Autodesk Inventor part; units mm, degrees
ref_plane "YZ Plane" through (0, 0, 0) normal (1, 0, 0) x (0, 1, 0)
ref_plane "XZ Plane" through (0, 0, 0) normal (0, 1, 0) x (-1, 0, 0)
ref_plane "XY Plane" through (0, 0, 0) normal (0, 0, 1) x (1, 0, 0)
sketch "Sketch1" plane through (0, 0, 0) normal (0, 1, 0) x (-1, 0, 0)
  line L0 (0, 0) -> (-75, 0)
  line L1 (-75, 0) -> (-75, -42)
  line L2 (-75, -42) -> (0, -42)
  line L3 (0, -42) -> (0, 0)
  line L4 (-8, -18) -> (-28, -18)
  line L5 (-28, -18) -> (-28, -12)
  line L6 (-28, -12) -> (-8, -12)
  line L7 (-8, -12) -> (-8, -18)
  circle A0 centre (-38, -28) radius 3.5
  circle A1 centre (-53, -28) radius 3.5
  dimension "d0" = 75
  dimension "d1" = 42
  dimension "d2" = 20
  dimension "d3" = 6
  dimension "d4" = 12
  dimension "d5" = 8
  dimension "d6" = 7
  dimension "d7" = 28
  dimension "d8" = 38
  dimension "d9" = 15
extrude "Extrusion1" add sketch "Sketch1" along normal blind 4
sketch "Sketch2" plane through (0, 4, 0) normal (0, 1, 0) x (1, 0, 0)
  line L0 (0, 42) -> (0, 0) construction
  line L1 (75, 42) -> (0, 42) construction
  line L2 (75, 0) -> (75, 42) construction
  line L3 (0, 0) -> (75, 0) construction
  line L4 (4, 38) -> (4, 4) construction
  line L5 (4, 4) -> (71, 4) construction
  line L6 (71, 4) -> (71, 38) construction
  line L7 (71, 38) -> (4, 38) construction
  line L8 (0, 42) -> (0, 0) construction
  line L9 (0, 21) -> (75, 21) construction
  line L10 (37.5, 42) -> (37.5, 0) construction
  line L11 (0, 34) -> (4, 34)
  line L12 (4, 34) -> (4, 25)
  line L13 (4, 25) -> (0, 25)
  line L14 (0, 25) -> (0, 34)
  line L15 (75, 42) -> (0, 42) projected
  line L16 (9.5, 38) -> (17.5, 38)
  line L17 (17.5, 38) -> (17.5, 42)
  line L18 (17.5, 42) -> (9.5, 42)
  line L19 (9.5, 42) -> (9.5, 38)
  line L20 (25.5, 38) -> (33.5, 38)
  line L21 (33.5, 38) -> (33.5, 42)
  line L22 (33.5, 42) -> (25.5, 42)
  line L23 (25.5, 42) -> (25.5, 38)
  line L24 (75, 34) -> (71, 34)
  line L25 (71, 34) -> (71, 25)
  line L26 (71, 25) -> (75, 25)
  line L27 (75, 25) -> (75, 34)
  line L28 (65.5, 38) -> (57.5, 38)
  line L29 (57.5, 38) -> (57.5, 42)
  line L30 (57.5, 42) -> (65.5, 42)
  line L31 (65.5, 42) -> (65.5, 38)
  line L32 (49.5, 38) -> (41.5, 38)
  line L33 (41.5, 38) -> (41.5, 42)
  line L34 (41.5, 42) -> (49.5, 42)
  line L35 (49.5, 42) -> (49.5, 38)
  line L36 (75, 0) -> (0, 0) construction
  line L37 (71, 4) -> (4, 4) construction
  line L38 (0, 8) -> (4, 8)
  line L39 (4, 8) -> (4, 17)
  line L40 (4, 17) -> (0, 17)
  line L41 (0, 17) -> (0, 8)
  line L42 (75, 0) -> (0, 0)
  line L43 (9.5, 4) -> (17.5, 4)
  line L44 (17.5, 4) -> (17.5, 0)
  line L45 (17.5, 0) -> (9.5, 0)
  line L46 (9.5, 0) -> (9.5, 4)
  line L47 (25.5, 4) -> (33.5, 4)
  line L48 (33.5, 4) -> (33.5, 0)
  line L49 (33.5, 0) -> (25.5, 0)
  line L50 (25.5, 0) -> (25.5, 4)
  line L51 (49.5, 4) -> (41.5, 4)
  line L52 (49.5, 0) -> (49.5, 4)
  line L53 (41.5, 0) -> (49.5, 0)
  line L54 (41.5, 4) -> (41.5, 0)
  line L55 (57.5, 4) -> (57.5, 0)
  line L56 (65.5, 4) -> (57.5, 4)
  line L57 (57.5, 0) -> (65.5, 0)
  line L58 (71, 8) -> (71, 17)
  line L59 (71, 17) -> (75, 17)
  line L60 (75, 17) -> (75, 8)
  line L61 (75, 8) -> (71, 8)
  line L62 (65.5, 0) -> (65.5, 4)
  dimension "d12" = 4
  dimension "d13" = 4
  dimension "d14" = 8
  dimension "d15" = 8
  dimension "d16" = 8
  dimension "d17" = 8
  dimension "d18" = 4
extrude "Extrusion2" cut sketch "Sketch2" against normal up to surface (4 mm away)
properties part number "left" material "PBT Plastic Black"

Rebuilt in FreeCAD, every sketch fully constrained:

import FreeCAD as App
import Part
import Sketcher

V = App.Vector
Q = App.Units.Quantity


def add_polygon(sketch, points):
    """Adds a closed chain of lines whose ends are joined by coincident constraints."""
    first, n = sketch.GeometryCount, len(points)
    for a, b in zip(points, points[1:] + points[:1]):
        sketch.addGeometry(Part.LineSegment(App.Vector(*a, 0), App.Vector(*b, 0)), False)
    for i in range(n):
        sketch.addConstraint(Sketcher.Constraint("Coincident", first + i, 2, first + (i + 1) % n, 1))

doc = App.newDocument("Part")
params = doc.addObject("Spreadsheet::Sheet", "Params")
for row, (alias, value) in enumerate([
    ("sketch1_diameter", "7 mm"),
    ("sketch1_width", "75 mm"),
    ("sketch1_width2", "20 mm"),
    ("sketch1_height", "42 mm"),
    ("sketch1_height2", "6 mm"),
    ("pad1_length", "4 mm"),
    ("sketch2_width", "4 mm"),
    ("sketch2_width2", "8 mm"),
    ("sketch2_height", "9 mm"),
    ("pocket1_length", "4 mm"),
], start=1):
    params.set(f"A{row}", alias)
    params.set(f"B{row}", "=" + value)
    params.setAlias(f"B{row}", alias)

body = doc.addObject("PartDesign::Body", "Body")

sketch1 = body.newObject("Sketcher::SketchObject", "Sketch")
sketch1.AttachmentSupport = (doc.getObject("XZ_Plane"), [""])
sketch1.MapMode = "FlatFace"
add_polygon(sketch1, [(0, -42), (0, 0), (75, 0), (75, -42)])
sketch1.addGeometry(Part.Circle(V(53, -28, 0), V(0, 0, 1), 3.5), False)
sketch1.addGeometry(Part.Circle(V(38, -28, 0), V(0, 0, 1), 3.5), False)
add_polygon(sketch1, [(8, -12), (8, -18), (28, -18), (28, -12)])
sketch1.addConstraint([
    Sketcher.Constraint("Vertical", 0),
    Sketcher.Constraint("Horizontal", 1),
    Sketcher.Constraint("Vertical", 2),
    Sketcher.Constraint("Horizontal", 3),
    Sketcher.Constraint("Vertical", 6),
    Sketcher.Constraint("Horizontal", 7),
    Sketcher.Constraint("Vertical", 8),
    Sketcher.Constraint("Horizontal", 9),
    Sketcher.Constraint("Coincident", 0, 2, -1, 1),
    Sketcher.Constraint("Equal", 4, 5),
    Sketcher.Constraint("Horizontal", 4, 3, 5, 3),
    Sketcher.Constraint("Diameter", 4, Q("7 mm")),
    Sketcher.Constraint("DistanceX", 1, 1, 1, 2, Q("75 mm")),
    Sketcher.Constraint("DistanceX", 7, 1, 7, 2, Q("20 mm")),
    Sketcher.Constraint("DistanceY", 0, 1, 0, 2, Q("42 mm")),
    Sketcher.Constraint("DistanceY", 6, 2, 6, 1, Q("6 mm")),
    Sketcher.Constraint("DistanceY", 4, 3, -1, 1, Q("28 mm")),
    Sketcher.Constraint("DistanceX", -1, 1, 5, 3, Q("38 mm")),
    Sketcher.Constraint("DistanceX", -1, 1, 6, 2, Q("8 mm")),
    Sketcher.Constraint("DistanceY", 8, 2, -1, 1, Q("12 mm")),
    Sketcher.Constraint("DistanceX", 5, 3, 4, 3, Q("15 mm")),
])
sketch1.setExpression("Constraints[19]", "Params.sketch1_diameter")
sketch1.setExpression("Constraints[20]", "Params.sketch1_width")
sketch1.setExpression("Constraints[21]", "Params.sketch1_width2")
sketch1.setExpression("Constraints[22]", "Params.sketch1_height")
sketch1.setExpression("Constraints[23]", "Params.sketch1_height2")
pad1 = body.newObject("PartDesign::Pad", "Pad")
pad1.Profile = sketch1
pad1.setExpression("Length", "Params.pad1_length")
pad1.Reversed = True

sketch2 = body.newObject("Sketcher::SketchObject", "Sketch001")
sketch2.AttachmentSupport = (doc.getObject("XZ_Plane"), [""])
sketch2.MapMode = "FlatFace"
sketch2.AttachmentOffset = App.Placement(V(0, 0, -4), App.Rotation())
add_polygon(sketch2, [(4, -34), (0, -34), (0, -25), (4, -25)])
add_polygon(sketch2, [(65.5, -38), (65.5, -42), (57.5, -42), (57.5, -38)])
add_polygon(sketch2, [(17.5, -38), (17.5, -42), (9.5, -42), (9.5, -38)])
add_polygon(sketch2, [(33.5, -38), (33.5, -42), (25.5, -42), (25.5, -38)])
add_polygon(sketch2, [(49.5, -38), (49.5, -42), (41.5, -42), (41.5, -38)])
add_polygon(sketch2, [(75, -25), (75, -34), (71, -34), (71, -25)])
add_polygon(sketch2, [(0, -17), (0, -8), (4, -8), (4, -17)])
add_polygon(sketch2, [(9.5, 0), (17.5, 0), (17.5, -4), (9.5, -4)])
add_polygon(sketch2, [(25.5, 0), (33.5, 0), (33.5, -4), (25.5, -4)])
add_polygon(sketch2, [(41.5, 0), (49.5, 0), (49.5, -4), (41.5, -4)])
add_polygon(sketch2, [(57.5, 0), (65.5, 0), (65.5, -4), (57.5, -4)])
add_polygon(sketch2, [(71, -17), (71, -8), (75, -8), (75, -17)])
sketch2.addConstraint([
    Sketcher.Constraint("Horizontal", 0),
    Sketcher.Constraint("Vertical", 1),
    Sketcher.Constraint("Horizontal", 2),
    Sketcher.Constraint("Vertical", 3),
    Sketcher.Constraint("Vertical", 4),
    Sketcher.Constraint("Horizontal", 5),
    Sketcher.Constraint("Vertical", 6),
    Sketcher.Constraint("Horizontal", 7),
    Sketcher.Constraint("Vertical", 8),
    Sketcher.Constraint("Horizontal", 9),
    Sketcher.Constraint("Vertical", 10),
    Sketcher.Constraint("Horizontal", 11),
    Sketcher.Constraint("Vertical", 12),
    Sketcher.Constraint("Horizontal", 13),
    Sketcher.Constraint("Vertical", 14),
    Sketcher.Constraint("Horizontal", 15),
    Sketcher.Constraint("Vertical", 16),
    Sketcher.Constraint("Horizontal", 17),
    Sketcher.Constraint("Vertical", 18),
    Sketcher.Constraint("Horizontal", 19),
    Sketcher.Constraint("Vertical", 20),
    Sketcher.Constraint("Horizontal", 21),
    Sketcher.Constraint("Vertical", 22),
    Sketcher.Constraint("Horizontal", 23),
    Sketcher.Constraint("Vertical", 24),
    Sketcher.Constraint("Horizontal", 25),
    Sketcher.Constraint("Vertical", 26),
    Sketcher.Constraint("Horizontal", 27),
    Sketcher.Constraint("Horizontal", 28),
    Sketcher.Constraint("Vertical", 29),
    Sketcher.Constraint("Horizontal", 30),
    Sketcher.Constraint("Vertical", 31),
    Sketcher.Constraint("Horizontal", 32),
    Sketcher.Constraint("Vertical", 33),
    Sketcher.Constraint("Horizontal", 34),
    Sketcher.Constraint("Vertical", 35),
    Sketcher.Constraint("Horizontal", 36),
    Sketcher.Constraint("Vertical", 37),
    Sketcher.Constraint("Horizontal", 38),
    Sketcher.Constraint("Vertical", 39),
    Sketcher.Constraint("Horizontal", 40),
    Sketcher.Constraint("Vertical", 41),
    Sketcher.Constraint("Horizontal", 42),
    Sketcher.Constraint("Vertical", 43),
    Sketcher.Constraint("Vertical", 44),
    Sketcher.Constraint("Horizontal", 45),
    Sketcher.Constraint("Vertical", 46),
    Sketcher.Constraint("Horizontal", 47),
    Sketcher.Constraint("PointOnObject", 0, 2, -2),
    Sketcher.Constraint("PointOnObject", 24, 2, -2),
    Sketcher.Constraint("PointOnObject", 28, 2, -1),
    Sketcher.Constraint("PointOnObject", 32, 2, -1),
    Sketcher.Constraint("PointOnObject", 36, 2, -1),
    Sketcher.Constraint("PointOnObject", 40, 2, -1),
    Sketcher.Constraint("Horizontal", 5, 2, 8, 2),
    Sketcher.Constraint("Horizontal", 7, 2, 10, 2),
    Sketcher.Constraint("Horizontal", 9, 2, 12, 2),
    Sketcher.Constraint("Horizontal", 11, 2, 14, 2),
    Sketcher.Constraint("Horizontal", 13, 2, 16, 2),
    Sketcher.Constraint("Horizontal", 15, 2, 18, 2),
    Sketcher.Constraint("Horizontal", 3, 2, 20, 2),
    Sketcher.Constraint("Horizontal", 2, 2, 22, 2),
    Sketcher.Constraint("Horizontal", 30, 2, 33, 2),
    Sketcher.Constraint("Horizontal", 34, 2, 37, 2),
    Sketcher.Constraint("Horizontal", 38, 2, 41, 2),
    Sketcher.Constraint("Horizontal", 25, 2, 44, 2),
    Sketcher.Constraint("Horizontal", 27, 2, 46, 2),
    Sketcher.Constraint("Vertical", 3, 2, 25, 2),
    Sketcher.Constraint("Vertical", 11, 2, 28, 2),
    Sketcher.Constraint("Vertical", 10, 2, 30, 2),
    Sketcher.Constraint("Vertical", 15, 2, 32, 2),
    Sketcher.Constraint("Vertical", 14, 2, 34, 2),
    Sketcher.Constraint("Vertical", 19, 2, 36, 2),
    Sketcher.Constraint("Vertical", 18, 2, 38, 2),
    Sketcher.Constraint("Vertical", 7, 2, 40, 2),
    Sketcher.Constraint("Vertical", 6, 2, 42, 2),
    Sketcher.Constraint("Vertical", 22, 2, 44, 2),
    Sketcher.Constraint("Vertical", 23, 2, 45, 2),
    Sketcher.Constraint("Equal", 7, 9),
    Sketcher.Constraint("Equal", 11, 13),
    Sketcher.Constraint("Equal", 15, 17),
    Sketcher.Constraint("Equal", 2, 21),
    Sketcher.Constraint("Equal", 47, 4),
    Sketcher.Constraint("Equal", 22, 24),
    Sketcher.Constraint("Equal", 18, 29),
    Sketcher.Constraint("DistanceX", 0, 2, 0, 1, Q("4 mm")),
    Sketcher.Constraint("DistanceX", 5, 2, 5, 1, Q("8 mm")),
    Sketcher.Constraint("DistanceY", 24, 2, -1, 1, Q("8 mm")),
    Sketcher.Constraint("DistanceY", 4, 2, 3, 2, Q("8 mm")),
    Sketcher.Constraint("DistanceX", 8, 2, 13, 2, Q("8 mm")),
    Sketcher.Constraint("DistanceX", 16, 2, 5, 2, Q("8 mm")),
    Sketcher.Constraint("DistanceX", 12, 2, 17, 2, Q("8 mm")),
    Sketcher.Constraint("DistanceY", 2, 2, 26, 2, Q("8 mm")),
    Sketcher.Constraint("DistanceY", 1, 1, 1, 2, Q("9 mm")),
    Sketcher.Constraint("DistanceX", -1, 1, 20, 2, Q("75 mm")),
    Sketcher.Constraint("DistanceX", -1, 1, 4, 2, Q("65.5 mm")),
])
sketch2.setExpression("Constraints[133]", "Params.sketch2_width")
sketch2.setExpression("Constraints[134]", "Params.sketch2_width2")
sketch2.setExpression("Constraints[141]", "Params.sketch2_height")
pocket1 = body.newObject("PartDesign::Pocket", "Pocket")
pocket1.Profile = sketch2
pocket1.setExpression("Length", "Params.pocket1_length")
pocket1.Reversed = True

doc.recompute()
